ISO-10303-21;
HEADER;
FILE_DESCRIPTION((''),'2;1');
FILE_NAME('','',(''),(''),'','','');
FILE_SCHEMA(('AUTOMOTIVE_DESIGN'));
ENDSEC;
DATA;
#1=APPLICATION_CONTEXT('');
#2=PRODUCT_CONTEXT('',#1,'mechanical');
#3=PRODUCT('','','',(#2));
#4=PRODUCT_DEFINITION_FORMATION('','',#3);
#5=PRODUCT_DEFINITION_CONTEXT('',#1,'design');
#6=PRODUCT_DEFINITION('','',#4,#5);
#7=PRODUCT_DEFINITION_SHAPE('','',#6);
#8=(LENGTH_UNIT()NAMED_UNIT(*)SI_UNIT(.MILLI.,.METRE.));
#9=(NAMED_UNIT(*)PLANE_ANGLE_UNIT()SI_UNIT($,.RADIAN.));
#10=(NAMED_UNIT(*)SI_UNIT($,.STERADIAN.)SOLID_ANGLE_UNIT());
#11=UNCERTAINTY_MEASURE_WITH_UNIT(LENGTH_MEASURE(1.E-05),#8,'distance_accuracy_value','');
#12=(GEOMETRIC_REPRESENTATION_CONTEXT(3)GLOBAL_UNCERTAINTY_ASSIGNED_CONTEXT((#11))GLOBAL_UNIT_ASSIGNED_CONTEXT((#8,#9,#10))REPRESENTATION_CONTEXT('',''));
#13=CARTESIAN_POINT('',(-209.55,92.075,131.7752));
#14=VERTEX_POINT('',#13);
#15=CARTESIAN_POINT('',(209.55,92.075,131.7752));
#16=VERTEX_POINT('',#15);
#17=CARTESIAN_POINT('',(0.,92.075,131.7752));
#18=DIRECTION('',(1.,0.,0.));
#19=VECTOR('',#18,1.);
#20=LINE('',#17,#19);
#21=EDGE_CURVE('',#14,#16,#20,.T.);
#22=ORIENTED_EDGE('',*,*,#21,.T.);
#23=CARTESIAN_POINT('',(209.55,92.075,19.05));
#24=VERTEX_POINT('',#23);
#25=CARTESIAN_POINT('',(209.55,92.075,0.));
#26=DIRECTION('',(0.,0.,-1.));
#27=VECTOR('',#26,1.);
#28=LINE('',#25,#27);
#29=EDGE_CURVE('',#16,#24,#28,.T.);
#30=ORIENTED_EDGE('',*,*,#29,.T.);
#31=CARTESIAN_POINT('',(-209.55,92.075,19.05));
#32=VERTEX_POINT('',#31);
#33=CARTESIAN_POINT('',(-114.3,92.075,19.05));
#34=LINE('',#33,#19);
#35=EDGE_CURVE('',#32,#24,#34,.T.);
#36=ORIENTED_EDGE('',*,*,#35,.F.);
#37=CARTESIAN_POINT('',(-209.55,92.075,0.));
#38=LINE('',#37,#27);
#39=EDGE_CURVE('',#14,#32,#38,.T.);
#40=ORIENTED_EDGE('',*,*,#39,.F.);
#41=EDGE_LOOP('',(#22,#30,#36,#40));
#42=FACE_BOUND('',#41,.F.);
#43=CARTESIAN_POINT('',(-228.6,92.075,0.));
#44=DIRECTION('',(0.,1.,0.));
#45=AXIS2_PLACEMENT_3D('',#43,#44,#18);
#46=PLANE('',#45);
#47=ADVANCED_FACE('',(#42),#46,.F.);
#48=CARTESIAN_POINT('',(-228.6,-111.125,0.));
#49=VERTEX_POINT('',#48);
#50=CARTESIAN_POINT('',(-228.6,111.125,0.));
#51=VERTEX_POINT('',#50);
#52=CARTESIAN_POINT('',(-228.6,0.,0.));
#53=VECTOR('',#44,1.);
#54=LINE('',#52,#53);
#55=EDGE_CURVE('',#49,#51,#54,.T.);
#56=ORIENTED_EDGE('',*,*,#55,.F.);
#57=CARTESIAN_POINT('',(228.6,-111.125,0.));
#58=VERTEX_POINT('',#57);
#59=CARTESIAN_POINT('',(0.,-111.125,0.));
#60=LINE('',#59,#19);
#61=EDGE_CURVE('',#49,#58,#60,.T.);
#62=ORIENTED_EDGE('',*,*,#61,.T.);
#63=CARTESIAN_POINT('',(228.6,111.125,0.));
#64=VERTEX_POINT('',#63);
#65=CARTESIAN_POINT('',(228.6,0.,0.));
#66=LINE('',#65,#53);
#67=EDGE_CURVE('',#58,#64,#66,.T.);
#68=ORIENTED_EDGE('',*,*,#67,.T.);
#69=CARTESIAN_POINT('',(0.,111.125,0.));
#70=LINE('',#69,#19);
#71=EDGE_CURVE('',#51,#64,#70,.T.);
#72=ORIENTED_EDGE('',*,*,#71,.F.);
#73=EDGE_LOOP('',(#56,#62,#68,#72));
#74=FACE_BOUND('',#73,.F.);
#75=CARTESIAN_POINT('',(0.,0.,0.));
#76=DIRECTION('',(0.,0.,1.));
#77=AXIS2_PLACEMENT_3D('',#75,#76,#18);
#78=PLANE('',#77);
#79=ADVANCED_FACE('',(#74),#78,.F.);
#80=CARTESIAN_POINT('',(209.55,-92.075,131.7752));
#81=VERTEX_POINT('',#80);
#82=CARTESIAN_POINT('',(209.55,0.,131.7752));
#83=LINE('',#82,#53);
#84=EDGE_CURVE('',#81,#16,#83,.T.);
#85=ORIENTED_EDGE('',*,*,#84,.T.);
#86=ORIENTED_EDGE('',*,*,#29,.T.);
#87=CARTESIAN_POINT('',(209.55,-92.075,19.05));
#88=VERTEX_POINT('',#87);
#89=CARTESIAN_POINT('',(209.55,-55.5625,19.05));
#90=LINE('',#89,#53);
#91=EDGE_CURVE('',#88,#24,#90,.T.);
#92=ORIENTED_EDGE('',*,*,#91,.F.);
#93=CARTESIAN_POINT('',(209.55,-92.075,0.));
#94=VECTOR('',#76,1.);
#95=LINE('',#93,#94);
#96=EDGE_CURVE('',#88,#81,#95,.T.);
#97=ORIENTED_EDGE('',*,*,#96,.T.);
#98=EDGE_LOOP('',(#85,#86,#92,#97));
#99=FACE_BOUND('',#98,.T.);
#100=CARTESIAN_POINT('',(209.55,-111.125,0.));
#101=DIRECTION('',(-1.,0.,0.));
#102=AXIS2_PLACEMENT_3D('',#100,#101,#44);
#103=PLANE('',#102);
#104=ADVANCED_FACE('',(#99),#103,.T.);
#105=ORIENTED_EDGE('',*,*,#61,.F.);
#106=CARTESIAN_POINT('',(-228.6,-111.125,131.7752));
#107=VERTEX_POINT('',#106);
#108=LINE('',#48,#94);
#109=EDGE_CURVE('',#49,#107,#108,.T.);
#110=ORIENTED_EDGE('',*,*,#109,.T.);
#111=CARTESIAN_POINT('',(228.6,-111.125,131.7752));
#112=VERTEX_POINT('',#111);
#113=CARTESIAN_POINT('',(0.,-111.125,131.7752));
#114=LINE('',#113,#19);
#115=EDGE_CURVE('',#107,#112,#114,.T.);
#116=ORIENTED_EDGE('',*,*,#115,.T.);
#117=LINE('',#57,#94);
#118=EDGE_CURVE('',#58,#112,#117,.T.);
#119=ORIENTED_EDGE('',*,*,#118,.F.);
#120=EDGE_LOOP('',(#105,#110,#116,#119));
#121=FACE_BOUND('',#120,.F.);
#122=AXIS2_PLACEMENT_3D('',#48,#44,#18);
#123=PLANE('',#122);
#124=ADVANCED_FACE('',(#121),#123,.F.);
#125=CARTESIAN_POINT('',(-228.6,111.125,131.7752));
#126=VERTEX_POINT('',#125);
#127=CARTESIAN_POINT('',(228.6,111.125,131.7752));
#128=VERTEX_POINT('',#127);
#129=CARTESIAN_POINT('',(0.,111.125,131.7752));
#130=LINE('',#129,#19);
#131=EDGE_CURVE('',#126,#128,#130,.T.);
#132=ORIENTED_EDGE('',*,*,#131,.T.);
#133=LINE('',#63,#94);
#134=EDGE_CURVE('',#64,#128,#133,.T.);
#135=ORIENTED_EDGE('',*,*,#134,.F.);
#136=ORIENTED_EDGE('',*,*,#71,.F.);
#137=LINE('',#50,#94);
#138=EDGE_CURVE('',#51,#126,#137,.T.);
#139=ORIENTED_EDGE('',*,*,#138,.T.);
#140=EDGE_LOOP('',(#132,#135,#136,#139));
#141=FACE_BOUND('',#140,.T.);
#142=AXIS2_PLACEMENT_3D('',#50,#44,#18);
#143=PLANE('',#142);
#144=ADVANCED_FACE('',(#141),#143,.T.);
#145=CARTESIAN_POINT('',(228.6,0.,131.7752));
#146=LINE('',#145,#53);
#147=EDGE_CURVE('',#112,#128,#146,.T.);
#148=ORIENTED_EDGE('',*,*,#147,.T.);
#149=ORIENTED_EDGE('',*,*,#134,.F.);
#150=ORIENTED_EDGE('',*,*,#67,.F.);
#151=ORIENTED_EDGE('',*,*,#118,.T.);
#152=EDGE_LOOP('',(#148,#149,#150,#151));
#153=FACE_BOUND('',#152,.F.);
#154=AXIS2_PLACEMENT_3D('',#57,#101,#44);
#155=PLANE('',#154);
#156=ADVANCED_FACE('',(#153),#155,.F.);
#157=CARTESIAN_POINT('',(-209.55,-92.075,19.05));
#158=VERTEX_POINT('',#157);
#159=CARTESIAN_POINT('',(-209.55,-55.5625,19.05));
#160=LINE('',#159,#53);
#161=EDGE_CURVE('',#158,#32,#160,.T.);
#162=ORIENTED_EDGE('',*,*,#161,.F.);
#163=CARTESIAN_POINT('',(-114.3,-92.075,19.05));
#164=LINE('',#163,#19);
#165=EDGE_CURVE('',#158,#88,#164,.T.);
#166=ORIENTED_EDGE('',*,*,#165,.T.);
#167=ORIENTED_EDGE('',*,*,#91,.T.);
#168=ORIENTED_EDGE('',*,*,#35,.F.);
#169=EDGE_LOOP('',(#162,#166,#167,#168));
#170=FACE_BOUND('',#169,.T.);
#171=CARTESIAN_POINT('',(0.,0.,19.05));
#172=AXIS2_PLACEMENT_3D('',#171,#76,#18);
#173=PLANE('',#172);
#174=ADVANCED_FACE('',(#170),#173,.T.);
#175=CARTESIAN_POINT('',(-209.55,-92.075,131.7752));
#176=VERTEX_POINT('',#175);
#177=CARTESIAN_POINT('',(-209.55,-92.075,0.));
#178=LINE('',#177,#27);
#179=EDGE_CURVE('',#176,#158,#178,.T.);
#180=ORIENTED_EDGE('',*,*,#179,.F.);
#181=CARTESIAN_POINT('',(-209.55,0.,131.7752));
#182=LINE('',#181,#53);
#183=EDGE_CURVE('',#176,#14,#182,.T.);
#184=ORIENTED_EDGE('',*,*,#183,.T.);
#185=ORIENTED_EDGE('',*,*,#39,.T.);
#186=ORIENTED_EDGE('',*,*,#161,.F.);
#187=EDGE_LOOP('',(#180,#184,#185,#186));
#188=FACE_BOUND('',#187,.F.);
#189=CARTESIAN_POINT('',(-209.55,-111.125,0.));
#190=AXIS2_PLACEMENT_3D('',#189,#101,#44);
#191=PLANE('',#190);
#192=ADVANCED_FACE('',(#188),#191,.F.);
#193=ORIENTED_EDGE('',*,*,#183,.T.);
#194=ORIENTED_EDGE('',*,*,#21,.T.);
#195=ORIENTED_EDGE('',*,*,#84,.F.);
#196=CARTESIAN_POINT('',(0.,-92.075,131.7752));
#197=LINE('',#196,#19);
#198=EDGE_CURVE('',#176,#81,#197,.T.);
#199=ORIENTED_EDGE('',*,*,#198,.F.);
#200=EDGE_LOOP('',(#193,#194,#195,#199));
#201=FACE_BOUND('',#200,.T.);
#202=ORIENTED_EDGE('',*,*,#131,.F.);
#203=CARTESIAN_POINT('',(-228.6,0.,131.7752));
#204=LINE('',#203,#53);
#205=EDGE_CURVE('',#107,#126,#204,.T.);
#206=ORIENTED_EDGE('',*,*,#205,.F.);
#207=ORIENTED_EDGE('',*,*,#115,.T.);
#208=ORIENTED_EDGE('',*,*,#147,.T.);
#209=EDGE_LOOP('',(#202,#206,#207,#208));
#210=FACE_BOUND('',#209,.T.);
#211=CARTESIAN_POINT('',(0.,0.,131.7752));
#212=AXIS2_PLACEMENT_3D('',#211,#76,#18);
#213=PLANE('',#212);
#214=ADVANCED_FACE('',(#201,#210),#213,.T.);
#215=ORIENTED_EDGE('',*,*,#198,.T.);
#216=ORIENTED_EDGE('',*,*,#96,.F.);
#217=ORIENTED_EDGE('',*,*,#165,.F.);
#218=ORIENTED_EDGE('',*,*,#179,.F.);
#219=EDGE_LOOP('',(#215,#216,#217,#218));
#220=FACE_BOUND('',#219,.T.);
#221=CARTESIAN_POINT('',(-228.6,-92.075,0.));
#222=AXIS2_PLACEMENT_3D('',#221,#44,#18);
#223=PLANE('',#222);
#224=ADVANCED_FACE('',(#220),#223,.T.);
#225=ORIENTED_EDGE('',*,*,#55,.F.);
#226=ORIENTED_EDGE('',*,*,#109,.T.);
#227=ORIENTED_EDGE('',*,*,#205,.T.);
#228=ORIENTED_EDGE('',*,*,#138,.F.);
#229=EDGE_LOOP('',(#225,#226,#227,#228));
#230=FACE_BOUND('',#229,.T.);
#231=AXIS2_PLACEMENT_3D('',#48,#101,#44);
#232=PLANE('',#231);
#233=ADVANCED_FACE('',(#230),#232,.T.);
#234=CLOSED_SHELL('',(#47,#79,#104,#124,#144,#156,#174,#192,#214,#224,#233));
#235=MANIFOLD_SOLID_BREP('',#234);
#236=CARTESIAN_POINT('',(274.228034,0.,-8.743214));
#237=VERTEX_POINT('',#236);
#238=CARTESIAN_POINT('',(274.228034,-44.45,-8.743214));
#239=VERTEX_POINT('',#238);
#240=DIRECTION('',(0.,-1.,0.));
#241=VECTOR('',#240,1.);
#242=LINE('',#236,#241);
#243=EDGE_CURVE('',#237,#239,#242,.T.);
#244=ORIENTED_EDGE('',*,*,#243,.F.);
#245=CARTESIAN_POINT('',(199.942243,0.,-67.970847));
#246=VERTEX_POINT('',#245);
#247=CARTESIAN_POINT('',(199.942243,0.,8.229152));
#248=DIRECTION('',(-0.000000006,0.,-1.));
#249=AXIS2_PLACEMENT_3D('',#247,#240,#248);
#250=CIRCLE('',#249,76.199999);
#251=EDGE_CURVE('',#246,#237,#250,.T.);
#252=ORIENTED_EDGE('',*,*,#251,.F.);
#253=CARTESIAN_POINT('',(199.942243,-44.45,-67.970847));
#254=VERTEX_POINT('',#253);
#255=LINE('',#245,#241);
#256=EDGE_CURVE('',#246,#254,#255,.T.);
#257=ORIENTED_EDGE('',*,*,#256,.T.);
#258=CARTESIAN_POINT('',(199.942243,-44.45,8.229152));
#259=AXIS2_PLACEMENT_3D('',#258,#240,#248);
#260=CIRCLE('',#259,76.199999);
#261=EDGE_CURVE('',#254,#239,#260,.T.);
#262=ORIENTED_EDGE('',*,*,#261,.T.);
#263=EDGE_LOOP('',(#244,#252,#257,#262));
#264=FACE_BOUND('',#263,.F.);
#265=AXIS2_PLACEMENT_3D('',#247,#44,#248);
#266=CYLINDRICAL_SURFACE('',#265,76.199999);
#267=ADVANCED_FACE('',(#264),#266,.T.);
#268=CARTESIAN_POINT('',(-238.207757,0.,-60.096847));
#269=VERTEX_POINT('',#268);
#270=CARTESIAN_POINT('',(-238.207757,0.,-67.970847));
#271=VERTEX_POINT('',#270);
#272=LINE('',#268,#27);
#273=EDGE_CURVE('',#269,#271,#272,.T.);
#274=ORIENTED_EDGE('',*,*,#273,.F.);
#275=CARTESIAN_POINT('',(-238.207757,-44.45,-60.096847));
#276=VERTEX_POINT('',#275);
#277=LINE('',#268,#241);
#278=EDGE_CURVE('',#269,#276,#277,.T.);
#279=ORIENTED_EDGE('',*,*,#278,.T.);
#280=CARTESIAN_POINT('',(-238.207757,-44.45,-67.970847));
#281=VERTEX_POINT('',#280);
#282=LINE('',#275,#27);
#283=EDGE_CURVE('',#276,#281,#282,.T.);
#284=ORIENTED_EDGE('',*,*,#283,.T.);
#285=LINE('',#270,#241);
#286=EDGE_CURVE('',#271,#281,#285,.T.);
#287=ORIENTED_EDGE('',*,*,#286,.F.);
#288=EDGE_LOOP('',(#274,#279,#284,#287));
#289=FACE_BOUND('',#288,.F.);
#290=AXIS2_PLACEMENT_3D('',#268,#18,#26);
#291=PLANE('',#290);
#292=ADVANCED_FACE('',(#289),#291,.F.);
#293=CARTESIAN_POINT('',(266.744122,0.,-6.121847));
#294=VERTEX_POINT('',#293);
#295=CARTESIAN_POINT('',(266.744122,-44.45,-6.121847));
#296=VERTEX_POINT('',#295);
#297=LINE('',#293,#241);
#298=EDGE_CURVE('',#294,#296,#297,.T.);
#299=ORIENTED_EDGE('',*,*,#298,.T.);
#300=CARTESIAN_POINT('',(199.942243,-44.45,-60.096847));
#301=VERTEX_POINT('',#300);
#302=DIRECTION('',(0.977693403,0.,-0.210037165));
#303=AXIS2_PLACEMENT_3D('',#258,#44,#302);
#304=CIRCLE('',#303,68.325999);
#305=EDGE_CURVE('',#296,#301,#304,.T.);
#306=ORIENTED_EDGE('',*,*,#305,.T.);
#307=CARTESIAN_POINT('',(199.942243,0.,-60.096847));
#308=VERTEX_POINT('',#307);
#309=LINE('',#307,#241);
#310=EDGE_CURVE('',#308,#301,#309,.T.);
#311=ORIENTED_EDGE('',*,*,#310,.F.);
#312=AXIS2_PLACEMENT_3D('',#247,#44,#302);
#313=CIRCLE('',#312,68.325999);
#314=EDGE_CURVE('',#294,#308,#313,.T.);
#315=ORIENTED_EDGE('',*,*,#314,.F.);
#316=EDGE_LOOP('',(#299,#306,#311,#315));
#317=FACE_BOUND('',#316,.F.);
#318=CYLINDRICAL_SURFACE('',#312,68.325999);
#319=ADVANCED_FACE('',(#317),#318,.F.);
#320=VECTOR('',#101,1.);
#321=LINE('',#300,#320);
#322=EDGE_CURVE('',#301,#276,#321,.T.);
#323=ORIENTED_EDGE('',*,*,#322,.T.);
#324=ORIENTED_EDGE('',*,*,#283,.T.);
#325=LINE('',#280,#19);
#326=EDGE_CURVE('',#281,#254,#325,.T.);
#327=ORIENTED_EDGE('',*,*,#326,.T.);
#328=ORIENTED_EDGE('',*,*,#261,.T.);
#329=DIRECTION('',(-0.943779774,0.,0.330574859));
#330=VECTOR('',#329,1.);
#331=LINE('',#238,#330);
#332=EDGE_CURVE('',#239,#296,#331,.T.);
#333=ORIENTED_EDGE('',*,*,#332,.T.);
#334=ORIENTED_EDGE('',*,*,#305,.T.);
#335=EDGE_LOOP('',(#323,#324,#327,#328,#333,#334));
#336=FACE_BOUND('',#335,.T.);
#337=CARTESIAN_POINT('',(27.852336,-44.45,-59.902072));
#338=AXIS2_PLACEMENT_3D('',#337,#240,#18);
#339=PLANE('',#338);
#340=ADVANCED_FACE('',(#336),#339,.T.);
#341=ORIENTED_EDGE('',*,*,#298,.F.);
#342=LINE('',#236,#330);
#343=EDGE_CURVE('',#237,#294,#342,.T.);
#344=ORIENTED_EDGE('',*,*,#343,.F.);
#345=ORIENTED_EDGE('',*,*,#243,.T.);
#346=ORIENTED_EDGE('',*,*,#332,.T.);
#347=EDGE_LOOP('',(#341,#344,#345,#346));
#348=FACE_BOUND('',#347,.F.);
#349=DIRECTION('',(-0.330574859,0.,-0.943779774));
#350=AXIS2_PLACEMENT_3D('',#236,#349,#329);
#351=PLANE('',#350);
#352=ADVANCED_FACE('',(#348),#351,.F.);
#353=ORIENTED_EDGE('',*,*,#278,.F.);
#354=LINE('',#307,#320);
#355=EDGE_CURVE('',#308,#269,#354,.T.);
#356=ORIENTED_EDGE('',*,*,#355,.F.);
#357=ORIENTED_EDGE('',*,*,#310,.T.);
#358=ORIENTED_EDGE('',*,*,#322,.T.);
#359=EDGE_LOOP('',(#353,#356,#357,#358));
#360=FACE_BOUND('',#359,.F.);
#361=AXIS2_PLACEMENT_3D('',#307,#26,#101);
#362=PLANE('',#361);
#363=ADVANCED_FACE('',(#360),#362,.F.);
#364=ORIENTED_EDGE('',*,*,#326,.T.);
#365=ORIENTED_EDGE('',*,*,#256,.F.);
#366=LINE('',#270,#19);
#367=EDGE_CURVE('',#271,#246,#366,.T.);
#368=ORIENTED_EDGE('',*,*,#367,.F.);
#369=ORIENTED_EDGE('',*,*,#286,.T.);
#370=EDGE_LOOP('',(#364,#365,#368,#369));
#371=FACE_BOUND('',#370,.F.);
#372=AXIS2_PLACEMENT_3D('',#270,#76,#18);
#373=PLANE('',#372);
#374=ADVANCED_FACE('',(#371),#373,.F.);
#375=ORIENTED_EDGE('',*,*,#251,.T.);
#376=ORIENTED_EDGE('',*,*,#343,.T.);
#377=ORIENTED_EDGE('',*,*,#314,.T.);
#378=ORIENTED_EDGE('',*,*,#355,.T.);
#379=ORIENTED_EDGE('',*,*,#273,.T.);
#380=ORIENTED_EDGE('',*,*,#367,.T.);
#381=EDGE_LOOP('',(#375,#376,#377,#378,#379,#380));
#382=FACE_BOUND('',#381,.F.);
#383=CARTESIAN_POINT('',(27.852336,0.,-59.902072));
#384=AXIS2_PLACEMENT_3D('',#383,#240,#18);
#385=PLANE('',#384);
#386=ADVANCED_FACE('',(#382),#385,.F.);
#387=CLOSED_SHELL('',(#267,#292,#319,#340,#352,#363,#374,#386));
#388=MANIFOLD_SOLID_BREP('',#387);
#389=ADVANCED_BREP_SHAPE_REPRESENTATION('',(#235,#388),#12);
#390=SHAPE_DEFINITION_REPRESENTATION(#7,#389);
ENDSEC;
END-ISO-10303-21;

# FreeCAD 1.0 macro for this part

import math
import FreeCAD as App
import Part
import Sketcher
Q = App.Units.Quantity


def faces_at(feature, points):
    """Names of the faces that lie closest to the given points."""
    faces = feature.Shape.Faces
    near = lambda p: min(range(len(faces)), key=lambda i: faces[i].distToShape(Part.Vertex(*p))[0])
    return sorted({f"Face{near(p) + 1}" for p in points})

doc = App.newDocument("Part")
body = doc.addObject("PartDesign::Body", "Body")

sketch1 = body.newObject("Sketcher::SketchObject", "Sketch")
sketch1.AttachmentSupport = (doc.getObject("XY_Plane"), [""])
sketch1.MapMode = "FlatFace"
sketch1.addGeometry(Part.LineSegment(App.Vector(-228.6, 111.125, 0), App.Vector(-228.6, -111.125, 0)), False)
sketch1.addGeometry(Part.LineSegment(App.Vector(-228.6, -111.125, 0), App.Vector(228.6, -111.125, 0)), False)
sketch1.addGeometry(Part.LineSegment(App.Vector(228.6, -111.125, 0), App.Vector(228.6, 111.125, 0)), False)
sketch1.addGeometry(Part.LineSegment(App.Vector(228.6, 111.125, 0), App.Vector(-228.6, 111.125, 0)), False)
sketch1.addConstraint(Sketcher.Constraint("Coincident", 0, 2, 1, 1))
sketch1.addConstraint(Sketcher.Constraint("Coincident", 1, 2, 2, 1))
sketch1.addConstraint(Sketcher.Constraint("Coincident", 2, 2, 3, 1))
sketch1.addConstraint(Sketcher.Constraint("Coincident", 3, 2, 0, 1))
sketch1.addConstraint(Sketcher.Constraint("Vertical", 0))
sketch1.addConstraint(Sketcher.Constraint("Horizontal", 1))
sketch1.addConstraint(Sketcher.Constraint("Vertical", 2))
sketch1.addConstraint(Sketcher.Constraint("Horizontal", 3))
sketch1.addConstraint(Sketcher.Constraint("Symmetric", 0, 2, 2, 2, -1, 1))
sketch1.addConstraint(Sketcher.Constraint("DistanceX", 1, 1, 1, 2, Q("18 in")))
sketch1.addConstraint(Sketcher.Constraint("DistanceY", 0, 2, 0, 1, Q("8.75 in")))
pad1 = body.newObject("PartDesign::Pad", "Pad")
pad1.Profile = sketch1
pad1.Length = Q("5.188 in")
doc.recompute()

thickness = body.newObject("PartDesign::Thickness", "Thickness")
thickness.Base = (pad1, faces_at(pad1, [(0, 0, 131.775)]))
thickness.Value = Q("0.75 in")
thickness.Reversed = True
thickness.Join = "Arc"
body2 = doc.addObject("PartDesign::Body", "Body001")

sketch2 = body2.newObject("Sketcher::SketchObject", "Sketch001")
sketch2.AttachmentSupport = (doc.getObject("XZ_Plane001"), [""])
sketch2.MapMode = "FlatFace"
sketch2.addGeometry(Part.LineSegment(App.Vector(-238.207757, -60.096847, 0), App.Vector(-238.207757, -67.970847, 0)), False)
sketch2.addGeometry(Part.LineSegment(App.Vector(-238.207757, -67.970847, 0), App.Vector(199.942243, -67.970847, 0)), False)
sketch2.addGeometry(Part.ArcOfCircle(Part.Circle(App.Vector(199.942243, 8.229152, 0), App.Vector(0, 0, 1), 76.199999), math.radians(-90), math.radians(-12.869692)), False)
sketch2.addGeometry(Part.LineSegment(App.Vector(274.228034, -8.743214, 0), App.Vector(266.744122, -6.121847, 0)), False)
sketch2.addGeometry(Part.ArcOfCircle(Part.Circle(App.Vector(199.942243, 8.229152, 0), App.Vector(0, 0, 1), 68.325999), math.radians(-90), math.radians(-12.12453)), False)
sketch2.addGeometry(Part.LineSegment(App.Vector(199.942243, -60.096847, 0), App.Vector(-238.207757, -60.096847, 0)), False)
sketch2.addConstraint(Sketcher.Constraint("Coincident", 0, 2, 1, 1))
sketch2.addConstraint(Sketcher.Constraint("Tangent", 1, 2, 2, 1))
sketch2.addConstraint(Sketcher.Constraint("Coincident", 2, 2, 3, 1))
sketch2.addConstraint(Sketcher.Constraint("Coincident", 3, 2, 4, 2))
sketch2.addConstraint(Sketcher.Constraint("Tangent", 4, 1, 5, 1))
sketch2.addConstraint(Sketcher.Constraint("Coincident", 5, 2, 0, 1))
sketch2.addConstraint(Sketcher.Constraint("Vertical", 0))
sketch2.addConstraint(Sketcher.Constraint("Horizontal", 1))
sketch2.addConstraint(Sketcher.Constraint("Horizontal", 5))
sketch2.addConstraint(Sketcher.Constraint("Coincident", 4, 3, 2, 3))
sketch2.addConstraint(Sketcher.Constraint("Radius", 2, Q("3 in")))
sketch2.addConstraint(Sketcher.Constraint("Radius", 4, Q("2.69 in")))
sketch2.addConstraint(Sketcher.Constraint("DistanceX", 1, 1, 1, 2, Q("17.25 in")))
sketch2.addConstraint(Sketcher.Constraint("DistanceY", 3, 2, 2, 3, Q("0.565 in")))
sketch2.addConstraint(Sketcher.Constraint("DistanceX", -1, 1, 3, 2, Q("266.744122 mm")))
sketch2.addConstraint(Sketcher.Constraint("DistanceX", 2, 3, 2, 2, Q("74.285791 mm")))
sketch2.addConstraint(Sketcher.Constraint("DistanceY", -1, 1, 2, 3, Q("8.229152 mm")))
pad2 = body2.newObject("PartDesign::Pad", "Pad001")
pad2.Profile = sketch2
pad2.Length = Q("1.75 in")

doc.recompute()
